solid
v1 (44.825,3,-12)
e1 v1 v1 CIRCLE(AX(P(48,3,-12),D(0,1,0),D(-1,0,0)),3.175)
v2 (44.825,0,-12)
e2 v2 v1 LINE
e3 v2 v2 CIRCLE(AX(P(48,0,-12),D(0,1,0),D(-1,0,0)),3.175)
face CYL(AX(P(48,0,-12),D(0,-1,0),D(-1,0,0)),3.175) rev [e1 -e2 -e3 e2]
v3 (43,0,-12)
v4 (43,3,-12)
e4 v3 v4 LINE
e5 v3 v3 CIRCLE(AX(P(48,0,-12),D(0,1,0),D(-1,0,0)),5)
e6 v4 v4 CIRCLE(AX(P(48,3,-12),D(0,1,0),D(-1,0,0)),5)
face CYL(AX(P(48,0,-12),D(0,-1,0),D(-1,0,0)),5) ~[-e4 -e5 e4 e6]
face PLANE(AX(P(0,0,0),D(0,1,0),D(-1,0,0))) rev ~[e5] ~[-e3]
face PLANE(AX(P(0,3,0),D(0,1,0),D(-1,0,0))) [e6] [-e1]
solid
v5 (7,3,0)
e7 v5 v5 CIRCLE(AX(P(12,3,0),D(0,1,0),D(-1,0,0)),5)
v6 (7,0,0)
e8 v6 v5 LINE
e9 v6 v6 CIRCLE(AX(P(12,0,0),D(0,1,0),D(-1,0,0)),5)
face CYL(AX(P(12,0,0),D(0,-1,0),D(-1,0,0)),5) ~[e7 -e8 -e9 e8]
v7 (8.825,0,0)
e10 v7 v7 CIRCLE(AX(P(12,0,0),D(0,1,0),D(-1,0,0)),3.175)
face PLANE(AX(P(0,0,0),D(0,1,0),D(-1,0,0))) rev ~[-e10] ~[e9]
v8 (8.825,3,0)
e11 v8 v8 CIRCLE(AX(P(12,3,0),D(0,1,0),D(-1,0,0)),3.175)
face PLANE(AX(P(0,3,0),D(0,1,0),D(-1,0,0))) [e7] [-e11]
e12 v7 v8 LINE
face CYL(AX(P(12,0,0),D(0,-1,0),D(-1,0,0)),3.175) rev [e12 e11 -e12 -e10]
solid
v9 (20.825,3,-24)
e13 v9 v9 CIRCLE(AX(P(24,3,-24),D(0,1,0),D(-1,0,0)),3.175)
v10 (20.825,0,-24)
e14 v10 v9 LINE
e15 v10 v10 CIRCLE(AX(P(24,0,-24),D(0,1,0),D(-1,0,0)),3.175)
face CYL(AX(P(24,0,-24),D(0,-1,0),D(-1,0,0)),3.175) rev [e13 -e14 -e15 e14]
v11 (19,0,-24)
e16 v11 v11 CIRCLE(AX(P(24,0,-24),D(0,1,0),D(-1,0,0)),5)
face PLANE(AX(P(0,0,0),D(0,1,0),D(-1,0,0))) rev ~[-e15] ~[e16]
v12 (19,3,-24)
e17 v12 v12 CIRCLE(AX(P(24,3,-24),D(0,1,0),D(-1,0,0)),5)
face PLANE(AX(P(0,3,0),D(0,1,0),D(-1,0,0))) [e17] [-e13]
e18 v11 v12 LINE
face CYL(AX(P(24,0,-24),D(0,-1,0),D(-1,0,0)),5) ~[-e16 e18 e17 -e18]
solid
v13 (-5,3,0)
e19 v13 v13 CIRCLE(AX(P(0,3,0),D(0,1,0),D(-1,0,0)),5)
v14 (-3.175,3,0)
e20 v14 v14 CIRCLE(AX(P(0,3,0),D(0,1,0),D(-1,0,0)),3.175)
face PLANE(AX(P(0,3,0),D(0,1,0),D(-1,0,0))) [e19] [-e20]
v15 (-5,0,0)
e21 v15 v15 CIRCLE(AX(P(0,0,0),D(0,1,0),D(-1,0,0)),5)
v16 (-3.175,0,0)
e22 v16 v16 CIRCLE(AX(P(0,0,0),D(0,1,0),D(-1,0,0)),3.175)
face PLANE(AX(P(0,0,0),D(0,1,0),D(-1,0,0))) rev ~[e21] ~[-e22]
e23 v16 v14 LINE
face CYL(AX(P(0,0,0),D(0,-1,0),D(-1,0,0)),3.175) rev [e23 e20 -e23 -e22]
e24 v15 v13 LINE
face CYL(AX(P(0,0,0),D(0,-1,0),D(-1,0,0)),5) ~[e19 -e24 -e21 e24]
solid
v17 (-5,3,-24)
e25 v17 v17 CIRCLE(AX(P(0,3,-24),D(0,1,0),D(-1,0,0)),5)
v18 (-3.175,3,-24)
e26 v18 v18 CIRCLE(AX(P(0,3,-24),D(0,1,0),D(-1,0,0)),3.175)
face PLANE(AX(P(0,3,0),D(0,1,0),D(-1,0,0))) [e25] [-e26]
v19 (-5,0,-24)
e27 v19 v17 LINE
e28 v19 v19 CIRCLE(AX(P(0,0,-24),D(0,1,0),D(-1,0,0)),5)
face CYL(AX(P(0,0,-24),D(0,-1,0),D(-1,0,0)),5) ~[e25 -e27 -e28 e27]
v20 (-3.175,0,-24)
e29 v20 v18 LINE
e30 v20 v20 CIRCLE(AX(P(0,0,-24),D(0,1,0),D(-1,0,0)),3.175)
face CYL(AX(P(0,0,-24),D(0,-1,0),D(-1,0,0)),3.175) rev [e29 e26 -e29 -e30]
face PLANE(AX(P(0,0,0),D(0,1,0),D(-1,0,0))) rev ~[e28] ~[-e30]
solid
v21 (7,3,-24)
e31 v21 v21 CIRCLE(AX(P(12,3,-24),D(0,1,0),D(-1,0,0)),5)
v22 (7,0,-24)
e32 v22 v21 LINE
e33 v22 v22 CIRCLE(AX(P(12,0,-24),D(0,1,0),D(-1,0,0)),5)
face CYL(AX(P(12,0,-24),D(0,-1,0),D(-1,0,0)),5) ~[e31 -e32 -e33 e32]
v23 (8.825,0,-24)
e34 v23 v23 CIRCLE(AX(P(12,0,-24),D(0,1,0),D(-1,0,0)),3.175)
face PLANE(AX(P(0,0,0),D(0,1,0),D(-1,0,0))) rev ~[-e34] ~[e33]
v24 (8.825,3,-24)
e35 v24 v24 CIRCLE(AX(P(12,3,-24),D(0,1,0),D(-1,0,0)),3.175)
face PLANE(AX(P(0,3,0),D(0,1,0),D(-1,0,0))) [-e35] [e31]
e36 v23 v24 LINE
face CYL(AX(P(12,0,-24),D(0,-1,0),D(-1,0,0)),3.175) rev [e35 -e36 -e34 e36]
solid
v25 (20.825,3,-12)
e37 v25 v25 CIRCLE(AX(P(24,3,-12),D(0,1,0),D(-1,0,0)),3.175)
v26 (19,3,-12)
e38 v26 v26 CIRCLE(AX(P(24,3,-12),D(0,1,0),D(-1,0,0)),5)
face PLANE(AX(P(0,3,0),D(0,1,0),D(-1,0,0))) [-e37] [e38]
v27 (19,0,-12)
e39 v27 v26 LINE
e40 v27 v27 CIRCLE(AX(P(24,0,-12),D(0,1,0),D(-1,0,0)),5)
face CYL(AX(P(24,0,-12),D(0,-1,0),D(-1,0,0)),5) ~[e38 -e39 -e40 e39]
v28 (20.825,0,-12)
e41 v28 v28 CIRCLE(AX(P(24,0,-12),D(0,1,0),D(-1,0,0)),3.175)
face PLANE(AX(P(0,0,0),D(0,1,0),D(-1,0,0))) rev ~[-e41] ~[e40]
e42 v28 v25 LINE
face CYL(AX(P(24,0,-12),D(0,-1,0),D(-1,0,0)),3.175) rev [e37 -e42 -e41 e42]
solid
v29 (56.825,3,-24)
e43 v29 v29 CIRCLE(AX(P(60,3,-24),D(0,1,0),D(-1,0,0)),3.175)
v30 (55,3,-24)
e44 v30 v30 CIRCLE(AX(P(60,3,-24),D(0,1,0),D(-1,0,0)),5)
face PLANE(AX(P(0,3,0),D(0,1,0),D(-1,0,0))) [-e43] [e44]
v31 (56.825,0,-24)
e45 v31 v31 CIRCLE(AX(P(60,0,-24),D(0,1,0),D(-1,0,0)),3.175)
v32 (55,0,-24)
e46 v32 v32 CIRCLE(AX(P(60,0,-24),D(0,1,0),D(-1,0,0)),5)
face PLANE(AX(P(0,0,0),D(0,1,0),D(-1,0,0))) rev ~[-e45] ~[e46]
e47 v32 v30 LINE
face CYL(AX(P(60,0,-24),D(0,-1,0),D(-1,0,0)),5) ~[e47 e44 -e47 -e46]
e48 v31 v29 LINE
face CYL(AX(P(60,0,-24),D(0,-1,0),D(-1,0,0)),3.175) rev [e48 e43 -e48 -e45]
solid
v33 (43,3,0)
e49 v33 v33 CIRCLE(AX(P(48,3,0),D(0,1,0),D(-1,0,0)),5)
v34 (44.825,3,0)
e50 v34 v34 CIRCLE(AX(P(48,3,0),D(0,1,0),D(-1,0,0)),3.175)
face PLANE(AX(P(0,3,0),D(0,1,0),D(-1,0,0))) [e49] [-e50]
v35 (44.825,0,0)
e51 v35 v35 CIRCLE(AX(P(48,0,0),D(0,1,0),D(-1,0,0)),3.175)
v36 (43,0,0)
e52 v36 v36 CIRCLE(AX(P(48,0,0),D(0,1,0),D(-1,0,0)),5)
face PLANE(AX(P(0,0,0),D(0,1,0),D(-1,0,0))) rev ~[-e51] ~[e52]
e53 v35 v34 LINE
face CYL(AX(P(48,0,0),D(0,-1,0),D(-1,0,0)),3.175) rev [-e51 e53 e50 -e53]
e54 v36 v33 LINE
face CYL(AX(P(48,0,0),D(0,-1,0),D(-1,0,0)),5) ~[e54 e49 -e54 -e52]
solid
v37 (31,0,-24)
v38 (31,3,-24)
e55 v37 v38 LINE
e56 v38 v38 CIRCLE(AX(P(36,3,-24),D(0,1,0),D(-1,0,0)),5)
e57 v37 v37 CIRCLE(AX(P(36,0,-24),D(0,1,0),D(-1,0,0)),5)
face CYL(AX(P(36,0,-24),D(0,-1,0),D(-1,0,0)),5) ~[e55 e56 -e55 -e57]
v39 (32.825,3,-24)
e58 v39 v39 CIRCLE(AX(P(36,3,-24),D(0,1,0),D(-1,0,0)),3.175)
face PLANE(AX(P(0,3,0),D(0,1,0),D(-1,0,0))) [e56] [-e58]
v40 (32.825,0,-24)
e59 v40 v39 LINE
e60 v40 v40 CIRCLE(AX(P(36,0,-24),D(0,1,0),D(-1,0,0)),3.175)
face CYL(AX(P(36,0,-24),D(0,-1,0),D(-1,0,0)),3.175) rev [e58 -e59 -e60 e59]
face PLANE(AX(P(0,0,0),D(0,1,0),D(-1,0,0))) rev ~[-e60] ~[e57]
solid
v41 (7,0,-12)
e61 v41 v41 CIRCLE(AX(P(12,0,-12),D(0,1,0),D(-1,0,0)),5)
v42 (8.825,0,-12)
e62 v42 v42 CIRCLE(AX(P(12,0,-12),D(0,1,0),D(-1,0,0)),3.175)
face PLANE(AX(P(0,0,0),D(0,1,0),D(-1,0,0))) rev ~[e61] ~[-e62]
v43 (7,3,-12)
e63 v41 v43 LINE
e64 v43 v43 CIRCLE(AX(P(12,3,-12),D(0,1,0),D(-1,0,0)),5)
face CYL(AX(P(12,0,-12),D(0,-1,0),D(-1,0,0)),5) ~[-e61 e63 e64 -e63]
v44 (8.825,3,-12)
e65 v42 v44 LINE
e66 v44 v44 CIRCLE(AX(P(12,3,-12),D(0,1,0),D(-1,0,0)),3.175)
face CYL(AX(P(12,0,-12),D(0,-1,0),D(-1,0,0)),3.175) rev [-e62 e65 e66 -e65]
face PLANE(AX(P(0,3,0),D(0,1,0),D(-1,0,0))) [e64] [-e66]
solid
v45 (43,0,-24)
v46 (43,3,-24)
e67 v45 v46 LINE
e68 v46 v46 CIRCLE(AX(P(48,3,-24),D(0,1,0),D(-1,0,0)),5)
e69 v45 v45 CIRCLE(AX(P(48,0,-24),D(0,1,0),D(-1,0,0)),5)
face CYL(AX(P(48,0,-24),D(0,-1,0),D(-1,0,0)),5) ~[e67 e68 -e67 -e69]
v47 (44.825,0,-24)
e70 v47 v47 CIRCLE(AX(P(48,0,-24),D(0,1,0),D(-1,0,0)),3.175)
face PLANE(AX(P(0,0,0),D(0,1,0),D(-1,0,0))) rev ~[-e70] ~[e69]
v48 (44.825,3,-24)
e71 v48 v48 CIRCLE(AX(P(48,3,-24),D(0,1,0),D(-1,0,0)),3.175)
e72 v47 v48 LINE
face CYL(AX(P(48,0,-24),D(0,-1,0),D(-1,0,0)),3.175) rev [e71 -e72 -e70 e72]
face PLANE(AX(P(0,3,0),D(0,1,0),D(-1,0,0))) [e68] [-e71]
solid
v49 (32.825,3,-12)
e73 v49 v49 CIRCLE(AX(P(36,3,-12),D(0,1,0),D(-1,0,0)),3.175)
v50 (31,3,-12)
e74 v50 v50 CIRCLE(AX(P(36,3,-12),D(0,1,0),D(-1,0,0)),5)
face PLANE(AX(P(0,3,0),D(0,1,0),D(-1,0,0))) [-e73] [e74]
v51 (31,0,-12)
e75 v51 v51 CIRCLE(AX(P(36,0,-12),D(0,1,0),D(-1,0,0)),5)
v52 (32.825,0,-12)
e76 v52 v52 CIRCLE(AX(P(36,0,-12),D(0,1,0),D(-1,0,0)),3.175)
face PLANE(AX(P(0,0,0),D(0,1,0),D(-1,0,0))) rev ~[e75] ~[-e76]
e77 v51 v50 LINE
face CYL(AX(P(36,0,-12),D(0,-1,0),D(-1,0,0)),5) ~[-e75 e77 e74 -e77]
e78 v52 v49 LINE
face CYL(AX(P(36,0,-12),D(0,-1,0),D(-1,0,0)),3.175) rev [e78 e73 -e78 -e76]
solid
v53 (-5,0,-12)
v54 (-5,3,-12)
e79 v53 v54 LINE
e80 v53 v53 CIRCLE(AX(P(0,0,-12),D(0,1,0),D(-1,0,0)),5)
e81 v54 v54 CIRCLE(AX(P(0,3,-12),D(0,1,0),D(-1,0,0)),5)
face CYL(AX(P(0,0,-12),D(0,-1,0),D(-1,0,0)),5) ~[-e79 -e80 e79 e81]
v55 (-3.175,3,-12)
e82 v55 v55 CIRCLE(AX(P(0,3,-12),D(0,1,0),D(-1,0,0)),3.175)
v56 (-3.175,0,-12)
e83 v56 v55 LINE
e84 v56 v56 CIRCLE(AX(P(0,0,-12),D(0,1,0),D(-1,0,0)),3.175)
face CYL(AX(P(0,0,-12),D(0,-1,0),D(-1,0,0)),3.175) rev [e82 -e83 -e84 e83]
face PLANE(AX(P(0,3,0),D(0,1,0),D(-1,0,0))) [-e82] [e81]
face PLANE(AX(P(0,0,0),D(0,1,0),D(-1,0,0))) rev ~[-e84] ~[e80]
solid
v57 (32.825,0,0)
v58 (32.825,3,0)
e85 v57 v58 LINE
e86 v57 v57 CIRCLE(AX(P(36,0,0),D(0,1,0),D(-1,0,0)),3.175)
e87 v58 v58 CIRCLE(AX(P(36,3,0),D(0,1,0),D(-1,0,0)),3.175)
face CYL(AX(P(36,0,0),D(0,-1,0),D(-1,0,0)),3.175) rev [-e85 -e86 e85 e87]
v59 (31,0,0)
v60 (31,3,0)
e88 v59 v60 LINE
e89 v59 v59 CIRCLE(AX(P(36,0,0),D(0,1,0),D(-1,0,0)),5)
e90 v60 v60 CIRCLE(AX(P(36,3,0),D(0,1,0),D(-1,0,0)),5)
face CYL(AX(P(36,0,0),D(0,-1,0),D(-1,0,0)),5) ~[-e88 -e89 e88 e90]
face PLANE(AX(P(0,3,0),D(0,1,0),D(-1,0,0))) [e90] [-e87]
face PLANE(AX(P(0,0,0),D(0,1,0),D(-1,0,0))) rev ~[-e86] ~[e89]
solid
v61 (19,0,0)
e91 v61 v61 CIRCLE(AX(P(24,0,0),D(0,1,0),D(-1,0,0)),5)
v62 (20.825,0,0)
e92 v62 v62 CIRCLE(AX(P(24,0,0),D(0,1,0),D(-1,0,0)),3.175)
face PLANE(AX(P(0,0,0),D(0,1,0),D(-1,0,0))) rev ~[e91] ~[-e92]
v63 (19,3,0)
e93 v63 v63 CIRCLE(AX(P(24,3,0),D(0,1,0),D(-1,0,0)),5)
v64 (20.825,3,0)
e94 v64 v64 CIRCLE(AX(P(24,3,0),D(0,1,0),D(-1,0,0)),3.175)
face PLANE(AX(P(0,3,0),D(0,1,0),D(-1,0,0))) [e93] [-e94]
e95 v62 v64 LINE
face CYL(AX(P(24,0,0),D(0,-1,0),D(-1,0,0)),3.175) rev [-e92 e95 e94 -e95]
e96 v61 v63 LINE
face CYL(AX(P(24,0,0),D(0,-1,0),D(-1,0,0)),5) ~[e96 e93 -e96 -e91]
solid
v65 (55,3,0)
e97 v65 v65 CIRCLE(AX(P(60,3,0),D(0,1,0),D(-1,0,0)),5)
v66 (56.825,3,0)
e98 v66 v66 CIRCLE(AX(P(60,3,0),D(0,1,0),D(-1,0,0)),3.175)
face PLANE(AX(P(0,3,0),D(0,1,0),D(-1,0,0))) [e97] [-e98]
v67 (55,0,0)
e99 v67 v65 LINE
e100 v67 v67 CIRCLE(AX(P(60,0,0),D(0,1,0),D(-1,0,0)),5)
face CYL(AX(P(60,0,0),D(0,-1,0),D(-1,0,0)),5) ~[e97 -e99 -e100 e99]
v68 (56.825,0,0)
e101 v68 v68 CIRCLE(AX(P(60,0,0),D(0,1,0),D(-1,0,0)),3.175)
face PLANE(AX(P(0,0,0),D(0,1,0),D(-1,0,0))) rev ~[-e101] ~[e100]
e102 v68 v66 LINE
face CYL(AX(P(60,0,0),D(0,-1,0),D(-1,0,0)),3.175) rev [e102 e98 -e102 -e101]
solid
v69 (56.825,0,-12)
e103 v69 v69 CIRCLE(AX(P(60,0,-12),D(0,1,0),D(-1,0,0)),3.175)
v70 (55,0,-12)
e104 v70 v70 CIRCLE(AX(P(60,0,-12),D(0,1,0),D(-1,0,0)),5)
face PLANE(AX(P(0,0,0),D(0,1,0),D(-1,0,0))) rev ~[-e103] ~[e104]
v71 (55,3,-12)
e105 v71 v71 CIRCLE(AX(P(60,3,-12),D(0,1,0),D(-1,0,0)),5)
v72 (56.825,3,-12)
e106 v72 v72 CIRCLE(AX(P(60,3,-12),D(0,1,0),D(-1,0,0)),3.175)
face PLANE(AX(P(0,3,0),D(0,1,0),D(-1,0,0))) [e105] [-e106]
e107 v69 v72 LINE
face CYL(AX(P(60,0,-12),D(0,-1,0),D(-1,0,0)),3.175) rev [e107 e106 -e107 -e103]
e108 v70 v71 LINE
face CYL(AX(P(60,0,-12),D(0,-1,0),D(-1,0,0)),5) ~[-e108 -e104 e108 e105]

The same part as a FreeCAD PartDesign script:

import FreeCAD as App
import Part
import Sketcher
from FreeCAD import Vector
Q = App.Units.Quantity

doc = App.newDocument("Part")
params = doc.addObject("Spreadsheet::Sheet", "Params")
for row, (alias, value) in enumerate([
    ("sketch1_diameter", "0.25 in"),
    ("pad1_length", "0.1181102 in"),
], start=1):
    params.set(f"A{row}", alias)
    params.set(f"B{row}", "=" + value)
    params.setAlias(f"B{row}", alias)

body = doc.addObject("PartDesign::Body", "Body")
body.AllowCompound = True

sketch1 = doc.addObject("Sketcher::SketchObject", "Sketch")
body.addObject(sketch1)
sketch1.AttachmentSupport = (doc.XZ_Plane, [""])
sketch1.MapMode = "FlatFace"
sketch1.addGeometry(Part.Circle(Vector(0, 0, 0), Vector(0, 0, 1), 5), False)
sketch1.addGeometry(Part.Circle(Vector(0, 0, 0), Vector(0, 0, 1), 3.2), False)
sketch1.addGeometry(Part.Circle(Vector(12, 0, 0), Vector(0, 0, 1), 5), False)
sketch1.addGeometry(Part.Circle(Vector(12, 0, 0), Vector(0, 0, 1), 3.2), False)
sketch1.addGeometry(Part.Circle(Vector(24, 0, 0), Vector(0, 0, 1), 5), False)
sketch1.addGeometry(Part.Circle(Vector(24, 0, 0), Vector(0, 0, 1), 3.2), False)
sketch1.addGeometry(Part.Circle(Vector(36, 0, 0), Vector(0, 0, 1), 5), False)
sketch1.addGeometry(Part.Circle(Vector(36, 0, 0), Vector(0, 0, 1), 3.2), False)
sketch1.addGeometry(Part.Circle(Vector(48, 0, 0), Vector(0, 0, 1), 5), False)
sketch1.addGeometry(Part.Circle(Vector(48, 0, 0), Vector(0, 0, 1), 3.2), False)
sketch1.addGeometry(Part.Circle(Vector(60, 0, 0), Vector(0, 0, 1), 5), False)
sketch1.addGeometry(Part.Circle(Vector(60, 0, 0), Vector(0, 0, 1), 3.2), False)
sketch1.addGeometry(Part.Circle(Vector(0, -12, 0), Vector(0, 0, 1), 5), False)
sketch1.addGeometry(Part.Circle(Vector(0, -12, 0), Vector(0, 0, 1), 3.2), False)
sketch1.addGeometry(Part.Circle(Vector(12, -12, 0), Vector(0, 0, 1), 5), False)
sketch1.addGeometry(Part.Circle(Vector(12, -12, 0), Vector(0, 0, 1), 3.2), False)
sketch1.addGeometry(Part.Circle(Vector(24, -12, 0), Vector(0, 0, 1), 5), False)
sketch1.addGeometry(Part.Circle(Vector(24, -12, 0), Vector(0, 0, 1), 3.2), False)
sketch1.addGeometry(Part.Circle(Vector(36, -12, 0), Vector(0, 0, 1), 5), False)
sketch1.addGeometry(Part.Circle(Vector(36, -12, 0), Vector(0, 0, 1), 3.2), False)
sketch1.addGeometry(Part.Circle(Vector(48, -12, 0), Vector(0, 0, 1), 5), False)
sketch1.addGeometry(Part.Circle(Vector(48, -12, 0), Vector(0, 0, 1), 3.2), False)
sketch1.addGeometry(Part.Circle(Vector(60, -12, 0), Vector(0, 0, 1), 5), False)
sketch1.addGeometry(Part.Circle(Vector(60, -12, 0), Vector(0, 0, 1), 3.2), False)
sketch1.addGeometry(Part.Circle(Vector(0, -24, 0), Vector(0, 0, 1), 5), False)
sketch1.addGeometry(Part.Circle(Vector(0, -24, 0), Vector(0, 0, 1), 3.2), False)
sketch1.addGeometry(Part.Circle(Vector(12, -24, 0), Vector(0, 0, 1), 5), False)
sketch1.addGeometry(Part.Circle(Vector(12, -24, 0), Vector(0, 0, 1), 3.2), False)
sketch1.addGeometry(Part.Circle(Vector(24, -24, 0), Vector(0, 0, 1), 5), False)
sketch1.addGeometry(Part.Circle(Vector(24, -24, 0), Vector(0, 0, 1), 3.2), False)
sketch1.addGeometry(Part.Circle(Vector(36, -24, 0), Vector(0, 0, 1), 5), False)
sketch1.addGeometry(Part.Circle(Vector(36, -24, 0), Vector(0, 0, 1), 3.2), False)
sketch1.addGeometry(Part.Circle(Vector(48, -24, 0), Vector(0, 0, 1), 5), False)
sketch1.addGeometry(Part.Circle(Vector(48, -24, 0), Vector(0, 0, 1), 3.2), False)
sketch1.addGeometry(Part.Circle(Vector(60, -24, 0), Vector(0, 0, 1), 5), False)
sketch1.addGeometry(Part.Circle(Vector(60, -24, 0), Vector(0, 0, 1), 3.2), False)
sketch1.addConstraint(Sketcher.Constraint("Coincident", 0, 3, -1, 1))
sketch1.addConstraint(Sketcher.Constraint("Coincident", 1, 3, -1, 1))
sketch1.addConstraint(Sketcher.Constraint("Coincident", 3, 3, 2, 3))
sketch1.addConstraint(Sketcher.Constraint("Coincident", 5, 3, 4, 3))
sketch1.addConstraint(Sketcher.Constraint("Coincident", 7, 3, 6, 3))
sketch1.addConstraint(Sketcher.Constraint("Coincident", 9, 3, 8, 3))
sketch1.addConstraint(Sketcher.Constraint("Coincident", 11, 3, 10, 3))
sketch1.addConstraint(Sketcher.Constraint("Coincident", 13, 3, 12, 3))
sketch1.addConstraint(Sketcher.Constraint("Coincident", 15, 3, 14, 3))
sketch1.addConstraint(Sketcher.Constraint("Coincident", 17, 3, 16, 3))
sketch1.addConstraint(Sketcher.Constraint("Coincident", 19, 3, 18, 3))
sketch1.addConstraint(Sketcher.Constraint("Coincident", 21, 3, 20, 3))
sketch1.addConstraint(Sketcher.Constraint("Coincident", 23, 3, 22, 3))
sketch1.addConstraint(Sketcher.Constraint("Coincident", 25, 3, 24, 3))
sketch1.addConstraint(Sketcher.Constraint("Coincident", 27, 3, 26, 3))
sketch1.addConstraint(Sketcher.Constraint("Coincident", 29, 3, 28, 3))
sketch1.addConstraint(Sketcher.Constraint("Coincident", 31, 3, 30, 3))
sketch1.addConstraint(Sketcher.Constraint("Coincident", 33, 3, 32, 3))
sketch1.addConstraint(Sketcher.Constraint("Coincident", 35, 3, 34, 3))
sketch1.addConstraint(Sketcher.Constraint("Equal", 0, 2))
sketch1.addConstraint(Sketcher.Constraint("Equal", 1, 3))
sketch1.addConstraint(Sketcher.Constraint("Equal", 2, 4))
sketch1.addConstraint(Sketcher.Constraint("Equal", 3, 5))
sketch1.addConstraint(Sketcher.Constraint("Equal", 4, 6))
sketch1.addConstraint(Sketcher.Constraint("Equal", 5, 7))
sketch1.addConstraint(Sketcher.Constraint("Equal", 6, 8))
sketch1.addConstraint(Sketcher.Constraint("Equal", 7, 9))
sketch1.addConstraint(Sketcher.Constraint("Equal", 8, 10))
sketch1.addConstraint(Sketcher.Constraint("Equal", 9, 11))
sketch1.addConstraint(Sketcher.Constraint("Equal", 10, 12))
sketch1.addConstraint(Sketcher.Constraint("Equal", 11, 13))
sketch1.addConstraint(Sketcher.Constraint("Equal", 12, 14))
sketch1.addConstraint(Sketcher.Constraint("Equal", 13, 15))
sketch1.addConstraint(Sketcher.Constraint("Equal", 14, 16))
sketch1.addConstraint(Sketcher.Constraint("Equal", 15, 17))
sketch1.addConstraint(Sketcher.Constraint("Equal", 16, 18))
sketch1.addConstraint(Sketcher.Constraint("Equal", 17, 19))
sketch1.addConstraint(Sketcher.Constraint("Equal", 18, 20))
sketch1.addConstraint(Sketcher.Constraint("Equal", 19, 21))
sketch1.addConstraint(Sketcher.Constraint("Equal", 20, 22))
sketch1.addConstraint(Sketcher.Constraint("Equal", 21, 23))
sketch1.addConstraint(Sketcher.Constraint("Equal", 22, 24))
sketch1.addConstraint(Sketcher.Constraint("Equal", 23, 25))
sketch1.addConstraint(Sketcher.Constraint("Equal", 24, 26))
sketch1.addConstraint(Sketcher.Constraint("Equal", 25, 27))
sketch1.addConstraint(Sketcher.Constraint("Equal", 26, 28))
sketch1.addConstraint(Sketcher.Constraint("Equal", 27, 29))
sketch1.addConstraint(Sketcher.Constraint("Equal", 28, 30))
sketch1.addConstraint(Sketcher.Constraint("Equal", 29, 31))
sketch1.addConstraint(Sketcher.Constraint("Equal", 30, 32))
sketch1.addConstraint(Sketcher.Constraint("Equal", 31, 33))
sketch1.addConstraint(Sketcher.Constraint("Equal", 32, 34))
sketch1.addConstraint(Sketcher.Constraint("Equal", 33, 35))
sketch1.addConstraint(Sketcher.Constraint("PointOnObject", 2, 3, -1))
sketch1.addConstraint(Sketcher.Constraint("PointOnObject", 4, 3, -1))
sketch1.addConstraint(Sketcher.Constraint("PointOnObject", 6, 3, -1))
sketch1.addConstraint(Sketcher.Constraint("PointOnObject", 8, 3, -1))
sketch1.addConstraint(Sketcher.Constraint("PointOnObject", 10, 3, -1))
sketch1.addConstraint(Sketcher.Constraint("PointOnObject", 12, 3, -2))
sketch1.addConstraint(Sketcher.Constraint("PointOnObject", 24, 3, -2))
sketch1.addConstraint(Sketcher.Constraint("Horizontal", 13, 3, 14, 3))
sketch1.addConstraint(Sketcher.Constraint("Horizontal", 15, 3, 16, 3))
sketch1.addConstraint(Sketcher.Constraint("Horizontal", 17, 3, 18, 3))
sketch1.addConstraint(Sketcher.Constraint("Horizontal", 19, 3, 20, 3))
sketch1.addConstraint(Sketcher.Constraint("Horizontal", 21, 3, 22, 3))
sketch1.addConstraint(Sketcher.Constraint("Horizontal", 25, 3, 26, 3))
sketch1.addConstraint(Sketcher.Constraint("Horizontal", 27, 3, 28, 3))
sketch1.addConstraint(Sketcher.Constraint("Horizontal", 29, 3, 30, 3))
sketch1.addConstraint(Sketcher.Constraint("Horizontal", 31, 3, 32, 3))
sketch1.addConstraint(Sketcher.Constraint("Horizontal", 33, 3, 34, 3))
sketch1.addConstraint(Sketcher.Constraint("Vertical", 3, 3, 14, 3))
sketch1.addConstraint(Sketcher.Constraint("Vertical", 5, 3, 16, 3))
sketch1.addConstraint(Sketcher.Constraint("Vertical", 7, 3, 18, 3))
sketch1.addConstraint(Sketcher.Constraint("Vertical", 9, 3, 20, 3))
sketch1.addConstraint(Sketcher.Constraint("Vertical", 11, 3, 22, 3))
sketch1.addConstraint(Sketcher.Constraint("Vertical", 15, 3, 26, 3))
sketch1.addConstraint(Sketcher.Constraint("Vertical", 17, 3, 28, 3))
sketch1.addConstraint(Sketcher.Constraint("Vertical", 19, 3, 30, 3))
sketch1.addConstraint(Sketcher.Constraint("Vertical", 21, 3, 32, 3))
sketch1.addConstraint(Sketcher.Constraint("Vertical", 23, 3, 34, 3))
sketch1.addConstraint(Sketcher.Constraint("Diameter", 1, Q("0.25 in")))
sketch1.addConstraint(Sketcher.Constraint("Diameter", 0, Q("0.3937 in")))
sketch1.addConstraint(Sketcher.Constraint("DistanceX", -1, 1, 2, 3, 12.0))
sketch1.addConstraint(Sketcher.Constraint("DistanceY", 12, 3, -1, 1, 12.0))
sketch1.addConstraint(Sketcher.Constraint("DistanceX", 2, 3, 4, 3, 12.0))
sketch1.addConstraint(Sketcher.Constraint("DistanceX", 4, 3, 6, 3, 12.0))
sketch1.addConstraint(Sketcher.Constraint("DistanceX", 6, 3, 8, 3, 12.0))
sketch1.addConstraint(Sketcher.Constraint("DistanceX", 8, 3, 10, 3, 12.0))
sketch1.addConstraint(Sketcher.Constraint("DistanceY", 24, 3, 12, 3, 12.0))
sketch1.setExpression("Constraints[80]", "Params.sketch1_diameter")
pad1 = doc.addObject("PartDesign::Pad", "Pad")
body.addObject(pad1)
pad1.Profile = sketch1
pad1.setExpression("Length", "Params.pad1_length")
pad1.Reversed = True

doc.recompute()
